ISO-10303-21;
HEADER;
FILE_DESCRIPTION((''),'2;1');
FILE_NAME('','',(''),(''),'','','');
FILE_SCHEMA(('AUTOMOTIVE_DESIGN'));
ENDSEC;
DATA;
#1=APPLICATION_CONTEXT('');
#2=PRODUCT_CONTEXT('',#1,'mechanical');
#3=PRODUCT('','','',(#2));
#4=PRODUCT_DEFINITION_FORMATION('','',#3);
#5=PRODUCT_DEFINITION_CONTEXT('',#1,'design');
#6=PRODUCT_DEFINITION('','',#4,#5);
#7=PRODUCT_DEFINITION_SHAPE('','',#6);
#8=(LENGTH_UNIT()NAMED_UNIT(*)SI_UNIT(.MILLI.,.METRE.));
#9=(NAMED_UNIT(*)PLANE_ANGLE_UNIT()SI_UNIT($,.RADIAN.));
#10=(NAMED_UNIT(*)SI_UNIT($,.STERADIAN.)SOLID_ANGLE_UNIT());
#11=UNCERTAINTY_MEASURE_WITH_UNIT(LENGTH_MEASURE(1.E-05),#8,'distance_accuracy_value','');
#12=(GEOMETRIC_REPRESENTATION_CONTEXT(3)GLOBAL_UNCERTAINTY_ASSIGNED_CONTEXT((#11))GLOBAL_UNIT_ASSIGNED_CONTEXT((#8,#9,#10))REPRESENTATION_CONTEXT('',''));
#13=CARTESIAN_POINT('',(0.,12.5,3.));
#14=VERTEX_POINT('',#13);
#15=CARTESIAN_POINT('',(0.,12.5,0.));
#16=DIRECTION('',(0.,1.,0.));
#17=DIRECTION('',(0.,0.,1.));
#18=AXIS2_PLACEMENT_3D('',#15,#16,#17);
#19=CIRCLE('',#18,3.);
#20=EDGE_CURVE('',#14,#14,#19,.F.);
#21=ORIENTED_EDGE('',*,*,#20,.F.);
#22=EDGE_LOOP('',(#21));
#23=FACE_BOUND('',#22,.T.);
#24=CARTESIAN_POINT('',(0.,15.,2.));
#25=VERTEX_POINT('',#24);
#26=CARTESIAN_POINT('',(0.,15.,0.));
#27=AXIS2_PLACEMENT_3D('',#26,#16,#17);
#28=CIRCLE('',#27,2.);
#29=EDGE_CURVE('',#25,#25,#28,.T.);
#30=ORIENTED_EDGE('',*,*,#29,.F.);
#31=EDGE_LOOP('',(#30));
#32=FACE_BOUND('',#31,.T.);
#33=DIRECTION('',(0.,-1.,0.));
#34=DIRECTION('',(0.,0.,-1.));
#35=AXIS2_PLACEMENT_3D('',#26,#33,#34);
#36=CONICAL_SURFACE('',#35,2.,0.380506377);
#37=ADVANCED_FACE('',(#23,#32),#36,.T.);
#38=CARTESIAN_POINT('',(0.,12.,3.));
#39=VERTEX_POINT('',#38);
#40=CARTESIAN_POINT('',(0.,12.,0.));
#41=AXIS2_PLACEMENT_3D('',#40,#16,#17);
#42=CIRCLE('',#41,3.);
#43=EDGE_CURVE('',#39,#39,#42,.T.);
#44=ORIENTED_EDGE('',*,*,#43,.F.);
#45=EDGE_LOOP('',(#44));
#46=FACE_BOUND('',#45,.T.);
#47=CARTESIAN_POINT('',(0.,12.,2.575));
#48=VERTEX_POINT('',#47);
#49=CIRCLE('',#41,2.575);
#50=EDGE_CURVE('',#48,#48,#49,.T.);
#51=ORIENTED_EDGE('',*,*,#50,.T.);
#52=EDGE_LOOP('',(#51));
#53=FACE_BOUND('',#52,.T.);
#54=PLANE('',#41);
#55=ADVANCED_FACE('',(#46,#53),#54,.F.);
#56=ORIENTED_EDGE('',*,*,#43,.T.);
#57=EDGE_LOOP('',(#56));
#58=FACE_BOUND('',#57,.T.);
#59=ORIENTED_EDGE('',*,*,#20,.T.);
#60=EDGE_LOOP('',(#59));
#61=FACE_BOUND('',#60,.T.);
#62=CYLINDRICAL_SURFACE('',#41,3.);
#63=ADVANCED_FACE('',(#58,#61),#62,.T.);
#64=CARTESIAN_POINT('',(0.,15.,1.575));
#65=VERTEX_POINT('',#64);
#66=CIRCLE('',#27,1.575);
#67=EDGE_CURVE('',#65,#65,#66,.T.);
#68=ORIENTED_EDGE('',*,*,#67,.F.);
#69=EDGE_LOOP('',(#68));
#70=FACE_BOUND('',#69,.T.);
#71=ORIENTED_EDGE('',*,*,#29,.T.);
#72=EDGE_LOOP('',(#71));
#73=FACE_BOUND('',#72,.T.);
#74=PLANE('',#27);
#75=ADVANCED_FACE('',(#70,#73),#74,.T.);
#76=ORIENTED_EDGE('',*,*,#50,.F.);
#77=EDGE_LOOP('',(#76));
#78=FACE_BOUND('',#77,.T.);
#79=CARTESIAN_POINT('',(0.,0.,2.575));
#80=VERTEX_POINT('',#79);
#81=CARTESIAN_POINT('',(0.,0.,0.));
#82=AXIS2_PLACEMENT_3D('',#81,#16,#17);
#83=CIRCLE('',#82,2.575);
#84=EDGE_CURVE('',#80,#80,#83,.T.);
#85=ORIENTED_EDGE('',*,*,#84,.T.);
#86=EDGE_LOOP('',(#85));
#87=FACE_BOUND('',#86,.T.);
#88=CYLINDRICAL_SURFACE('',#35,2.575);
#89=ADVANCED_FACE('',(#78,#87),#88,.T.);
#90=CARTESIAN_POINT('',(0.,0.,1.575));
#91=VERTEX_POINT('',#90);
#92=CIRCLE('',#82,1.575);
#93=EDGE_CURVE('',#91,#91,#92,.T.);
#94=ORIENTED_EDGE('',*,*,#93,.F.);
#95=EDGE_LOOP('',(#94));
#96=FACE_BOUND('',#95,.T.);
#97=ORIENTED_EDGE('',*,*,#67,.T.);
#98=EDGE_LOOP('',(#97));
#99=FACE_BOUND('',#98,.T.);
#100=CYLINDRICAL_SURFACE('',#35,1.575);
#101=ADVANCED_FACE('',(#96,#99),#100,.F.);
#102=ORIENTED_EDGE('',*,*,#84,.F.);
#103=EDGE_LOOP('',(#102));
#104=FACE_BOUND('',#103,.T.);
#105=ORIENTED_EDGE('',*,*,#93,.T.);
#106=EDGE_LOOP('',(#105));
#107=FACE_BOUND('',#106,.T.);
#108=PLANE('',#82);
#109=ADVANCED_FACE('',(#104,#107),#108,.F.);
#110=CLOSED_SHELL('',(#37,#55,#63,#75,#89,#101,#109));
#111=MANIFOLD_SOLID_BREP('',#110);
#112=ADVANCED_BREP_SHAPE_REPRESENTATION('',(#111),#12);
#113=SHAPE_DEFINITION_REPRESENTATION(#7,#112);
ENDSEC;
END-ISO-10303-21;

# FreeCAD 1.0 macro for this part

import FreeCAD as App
import Part
import Sketcher

V = App.Vector
Q = App.Units.Quantity


def edges_at(feature, points):
    """Names of the edges that pass closest to the given points."""
    edges = feature.Shape.Edges
    near = lambda p: min(range(len(edges)), key=lambda i: edges[i].distToShape(Part.Vertex(*p))[0])
    return sorted({f"Edge{near(p) + 1}" for p in points})

doc = App.newDocument("Part")
body = doc.addObject("PartDesign::Body", "Body")

# Sketch on XZ plane
sketch1 = doc.addObject("Sketcher::SketchObject", "Sketch")
body.addObject(sketch1)
sketch1.AttachmentSupport = (doc.XZ_Plane, [""])
sketch1.MapMode = "FlatFace"
sketch1.addGeometry(Part.Circle(V(0, 0, 0), V(0, 0, 1), 2.6), False)
sketch1.addGeometry(Part.Circle(V(0, 0, 0), V(0, 0, 1), 1.6), False)
sketch1.addConstraint(Sketcher.Constraint("Coincident", 0, 3, -1, 1))
sketch1.addConstraint(Sketcher.Constraint("Coincident", 1, 3, -1, 1))
sketch1.addConstraint(Sketcher.Constraint("Diameter", 0, Q("5.15 mm")))
sketch1.addConstraint(Sketcher.Constraint("Diameter", 1, Q("3.15 mm")))
pad1 = doc.addObject("PartDesign::Pad", "Pad")
body.addObject(pad1)
pad1.Profile = sketch1
pad1.Length = 15
pad1.Reversed = True

# Sketch on XZ plane
sketch2 = doc.addObject("Sketcher::SketchObject", "Sketch001")
body.addObject(sketch2)
sketch2.AttachmentSupport = (doc.XZ_Plane, [""])
sketch2.MapMode = "FlatFace"
sketch2.AttachmentOffset = App.Placement(V(0, 0, -15), App.Rotation())
sketch2.addGeometry(Part.Circle(V(0, 0, 0), V(0, 0, 1), 3), False)
sketch2.addGeometry(Part.Circle(V(0, 0, 0), V(0, 0, 1), 1.6), False)
sketch2.addConstraint(Sketcher.Constraint("Coincident", 0, 3, -1, 1))
sketch2.addConstraint(Sketcher.Constraint("Coincident", 1, 3, -1, 1))
sketch2.addConstraint(Sketcher.Constraint("Diameter", 0, Q("6 mm")))
sketch2.addConstraint(Sketcher.Constraint("Diameter", 1, Q("3.15 mm")))
pad2 = doc.addObject("PartDesign::Pad", "Pad001")
body.addObject(pad2)
pad2.Profile = sketch2
pad2.Length = 3
doc.recompute()

chamfer = doc.addObject("PartDesign::Chamfer", "Chamfer")
body.addObject(chamfer)
chamfer.Base = (pad2, edges_at(pad2, [(-3, 15, 0)]))
chamfer.ChamferType = "Two distances"
chamfer.Size = 2.5
chamfer.Size2 = 1

doc.recompute()
